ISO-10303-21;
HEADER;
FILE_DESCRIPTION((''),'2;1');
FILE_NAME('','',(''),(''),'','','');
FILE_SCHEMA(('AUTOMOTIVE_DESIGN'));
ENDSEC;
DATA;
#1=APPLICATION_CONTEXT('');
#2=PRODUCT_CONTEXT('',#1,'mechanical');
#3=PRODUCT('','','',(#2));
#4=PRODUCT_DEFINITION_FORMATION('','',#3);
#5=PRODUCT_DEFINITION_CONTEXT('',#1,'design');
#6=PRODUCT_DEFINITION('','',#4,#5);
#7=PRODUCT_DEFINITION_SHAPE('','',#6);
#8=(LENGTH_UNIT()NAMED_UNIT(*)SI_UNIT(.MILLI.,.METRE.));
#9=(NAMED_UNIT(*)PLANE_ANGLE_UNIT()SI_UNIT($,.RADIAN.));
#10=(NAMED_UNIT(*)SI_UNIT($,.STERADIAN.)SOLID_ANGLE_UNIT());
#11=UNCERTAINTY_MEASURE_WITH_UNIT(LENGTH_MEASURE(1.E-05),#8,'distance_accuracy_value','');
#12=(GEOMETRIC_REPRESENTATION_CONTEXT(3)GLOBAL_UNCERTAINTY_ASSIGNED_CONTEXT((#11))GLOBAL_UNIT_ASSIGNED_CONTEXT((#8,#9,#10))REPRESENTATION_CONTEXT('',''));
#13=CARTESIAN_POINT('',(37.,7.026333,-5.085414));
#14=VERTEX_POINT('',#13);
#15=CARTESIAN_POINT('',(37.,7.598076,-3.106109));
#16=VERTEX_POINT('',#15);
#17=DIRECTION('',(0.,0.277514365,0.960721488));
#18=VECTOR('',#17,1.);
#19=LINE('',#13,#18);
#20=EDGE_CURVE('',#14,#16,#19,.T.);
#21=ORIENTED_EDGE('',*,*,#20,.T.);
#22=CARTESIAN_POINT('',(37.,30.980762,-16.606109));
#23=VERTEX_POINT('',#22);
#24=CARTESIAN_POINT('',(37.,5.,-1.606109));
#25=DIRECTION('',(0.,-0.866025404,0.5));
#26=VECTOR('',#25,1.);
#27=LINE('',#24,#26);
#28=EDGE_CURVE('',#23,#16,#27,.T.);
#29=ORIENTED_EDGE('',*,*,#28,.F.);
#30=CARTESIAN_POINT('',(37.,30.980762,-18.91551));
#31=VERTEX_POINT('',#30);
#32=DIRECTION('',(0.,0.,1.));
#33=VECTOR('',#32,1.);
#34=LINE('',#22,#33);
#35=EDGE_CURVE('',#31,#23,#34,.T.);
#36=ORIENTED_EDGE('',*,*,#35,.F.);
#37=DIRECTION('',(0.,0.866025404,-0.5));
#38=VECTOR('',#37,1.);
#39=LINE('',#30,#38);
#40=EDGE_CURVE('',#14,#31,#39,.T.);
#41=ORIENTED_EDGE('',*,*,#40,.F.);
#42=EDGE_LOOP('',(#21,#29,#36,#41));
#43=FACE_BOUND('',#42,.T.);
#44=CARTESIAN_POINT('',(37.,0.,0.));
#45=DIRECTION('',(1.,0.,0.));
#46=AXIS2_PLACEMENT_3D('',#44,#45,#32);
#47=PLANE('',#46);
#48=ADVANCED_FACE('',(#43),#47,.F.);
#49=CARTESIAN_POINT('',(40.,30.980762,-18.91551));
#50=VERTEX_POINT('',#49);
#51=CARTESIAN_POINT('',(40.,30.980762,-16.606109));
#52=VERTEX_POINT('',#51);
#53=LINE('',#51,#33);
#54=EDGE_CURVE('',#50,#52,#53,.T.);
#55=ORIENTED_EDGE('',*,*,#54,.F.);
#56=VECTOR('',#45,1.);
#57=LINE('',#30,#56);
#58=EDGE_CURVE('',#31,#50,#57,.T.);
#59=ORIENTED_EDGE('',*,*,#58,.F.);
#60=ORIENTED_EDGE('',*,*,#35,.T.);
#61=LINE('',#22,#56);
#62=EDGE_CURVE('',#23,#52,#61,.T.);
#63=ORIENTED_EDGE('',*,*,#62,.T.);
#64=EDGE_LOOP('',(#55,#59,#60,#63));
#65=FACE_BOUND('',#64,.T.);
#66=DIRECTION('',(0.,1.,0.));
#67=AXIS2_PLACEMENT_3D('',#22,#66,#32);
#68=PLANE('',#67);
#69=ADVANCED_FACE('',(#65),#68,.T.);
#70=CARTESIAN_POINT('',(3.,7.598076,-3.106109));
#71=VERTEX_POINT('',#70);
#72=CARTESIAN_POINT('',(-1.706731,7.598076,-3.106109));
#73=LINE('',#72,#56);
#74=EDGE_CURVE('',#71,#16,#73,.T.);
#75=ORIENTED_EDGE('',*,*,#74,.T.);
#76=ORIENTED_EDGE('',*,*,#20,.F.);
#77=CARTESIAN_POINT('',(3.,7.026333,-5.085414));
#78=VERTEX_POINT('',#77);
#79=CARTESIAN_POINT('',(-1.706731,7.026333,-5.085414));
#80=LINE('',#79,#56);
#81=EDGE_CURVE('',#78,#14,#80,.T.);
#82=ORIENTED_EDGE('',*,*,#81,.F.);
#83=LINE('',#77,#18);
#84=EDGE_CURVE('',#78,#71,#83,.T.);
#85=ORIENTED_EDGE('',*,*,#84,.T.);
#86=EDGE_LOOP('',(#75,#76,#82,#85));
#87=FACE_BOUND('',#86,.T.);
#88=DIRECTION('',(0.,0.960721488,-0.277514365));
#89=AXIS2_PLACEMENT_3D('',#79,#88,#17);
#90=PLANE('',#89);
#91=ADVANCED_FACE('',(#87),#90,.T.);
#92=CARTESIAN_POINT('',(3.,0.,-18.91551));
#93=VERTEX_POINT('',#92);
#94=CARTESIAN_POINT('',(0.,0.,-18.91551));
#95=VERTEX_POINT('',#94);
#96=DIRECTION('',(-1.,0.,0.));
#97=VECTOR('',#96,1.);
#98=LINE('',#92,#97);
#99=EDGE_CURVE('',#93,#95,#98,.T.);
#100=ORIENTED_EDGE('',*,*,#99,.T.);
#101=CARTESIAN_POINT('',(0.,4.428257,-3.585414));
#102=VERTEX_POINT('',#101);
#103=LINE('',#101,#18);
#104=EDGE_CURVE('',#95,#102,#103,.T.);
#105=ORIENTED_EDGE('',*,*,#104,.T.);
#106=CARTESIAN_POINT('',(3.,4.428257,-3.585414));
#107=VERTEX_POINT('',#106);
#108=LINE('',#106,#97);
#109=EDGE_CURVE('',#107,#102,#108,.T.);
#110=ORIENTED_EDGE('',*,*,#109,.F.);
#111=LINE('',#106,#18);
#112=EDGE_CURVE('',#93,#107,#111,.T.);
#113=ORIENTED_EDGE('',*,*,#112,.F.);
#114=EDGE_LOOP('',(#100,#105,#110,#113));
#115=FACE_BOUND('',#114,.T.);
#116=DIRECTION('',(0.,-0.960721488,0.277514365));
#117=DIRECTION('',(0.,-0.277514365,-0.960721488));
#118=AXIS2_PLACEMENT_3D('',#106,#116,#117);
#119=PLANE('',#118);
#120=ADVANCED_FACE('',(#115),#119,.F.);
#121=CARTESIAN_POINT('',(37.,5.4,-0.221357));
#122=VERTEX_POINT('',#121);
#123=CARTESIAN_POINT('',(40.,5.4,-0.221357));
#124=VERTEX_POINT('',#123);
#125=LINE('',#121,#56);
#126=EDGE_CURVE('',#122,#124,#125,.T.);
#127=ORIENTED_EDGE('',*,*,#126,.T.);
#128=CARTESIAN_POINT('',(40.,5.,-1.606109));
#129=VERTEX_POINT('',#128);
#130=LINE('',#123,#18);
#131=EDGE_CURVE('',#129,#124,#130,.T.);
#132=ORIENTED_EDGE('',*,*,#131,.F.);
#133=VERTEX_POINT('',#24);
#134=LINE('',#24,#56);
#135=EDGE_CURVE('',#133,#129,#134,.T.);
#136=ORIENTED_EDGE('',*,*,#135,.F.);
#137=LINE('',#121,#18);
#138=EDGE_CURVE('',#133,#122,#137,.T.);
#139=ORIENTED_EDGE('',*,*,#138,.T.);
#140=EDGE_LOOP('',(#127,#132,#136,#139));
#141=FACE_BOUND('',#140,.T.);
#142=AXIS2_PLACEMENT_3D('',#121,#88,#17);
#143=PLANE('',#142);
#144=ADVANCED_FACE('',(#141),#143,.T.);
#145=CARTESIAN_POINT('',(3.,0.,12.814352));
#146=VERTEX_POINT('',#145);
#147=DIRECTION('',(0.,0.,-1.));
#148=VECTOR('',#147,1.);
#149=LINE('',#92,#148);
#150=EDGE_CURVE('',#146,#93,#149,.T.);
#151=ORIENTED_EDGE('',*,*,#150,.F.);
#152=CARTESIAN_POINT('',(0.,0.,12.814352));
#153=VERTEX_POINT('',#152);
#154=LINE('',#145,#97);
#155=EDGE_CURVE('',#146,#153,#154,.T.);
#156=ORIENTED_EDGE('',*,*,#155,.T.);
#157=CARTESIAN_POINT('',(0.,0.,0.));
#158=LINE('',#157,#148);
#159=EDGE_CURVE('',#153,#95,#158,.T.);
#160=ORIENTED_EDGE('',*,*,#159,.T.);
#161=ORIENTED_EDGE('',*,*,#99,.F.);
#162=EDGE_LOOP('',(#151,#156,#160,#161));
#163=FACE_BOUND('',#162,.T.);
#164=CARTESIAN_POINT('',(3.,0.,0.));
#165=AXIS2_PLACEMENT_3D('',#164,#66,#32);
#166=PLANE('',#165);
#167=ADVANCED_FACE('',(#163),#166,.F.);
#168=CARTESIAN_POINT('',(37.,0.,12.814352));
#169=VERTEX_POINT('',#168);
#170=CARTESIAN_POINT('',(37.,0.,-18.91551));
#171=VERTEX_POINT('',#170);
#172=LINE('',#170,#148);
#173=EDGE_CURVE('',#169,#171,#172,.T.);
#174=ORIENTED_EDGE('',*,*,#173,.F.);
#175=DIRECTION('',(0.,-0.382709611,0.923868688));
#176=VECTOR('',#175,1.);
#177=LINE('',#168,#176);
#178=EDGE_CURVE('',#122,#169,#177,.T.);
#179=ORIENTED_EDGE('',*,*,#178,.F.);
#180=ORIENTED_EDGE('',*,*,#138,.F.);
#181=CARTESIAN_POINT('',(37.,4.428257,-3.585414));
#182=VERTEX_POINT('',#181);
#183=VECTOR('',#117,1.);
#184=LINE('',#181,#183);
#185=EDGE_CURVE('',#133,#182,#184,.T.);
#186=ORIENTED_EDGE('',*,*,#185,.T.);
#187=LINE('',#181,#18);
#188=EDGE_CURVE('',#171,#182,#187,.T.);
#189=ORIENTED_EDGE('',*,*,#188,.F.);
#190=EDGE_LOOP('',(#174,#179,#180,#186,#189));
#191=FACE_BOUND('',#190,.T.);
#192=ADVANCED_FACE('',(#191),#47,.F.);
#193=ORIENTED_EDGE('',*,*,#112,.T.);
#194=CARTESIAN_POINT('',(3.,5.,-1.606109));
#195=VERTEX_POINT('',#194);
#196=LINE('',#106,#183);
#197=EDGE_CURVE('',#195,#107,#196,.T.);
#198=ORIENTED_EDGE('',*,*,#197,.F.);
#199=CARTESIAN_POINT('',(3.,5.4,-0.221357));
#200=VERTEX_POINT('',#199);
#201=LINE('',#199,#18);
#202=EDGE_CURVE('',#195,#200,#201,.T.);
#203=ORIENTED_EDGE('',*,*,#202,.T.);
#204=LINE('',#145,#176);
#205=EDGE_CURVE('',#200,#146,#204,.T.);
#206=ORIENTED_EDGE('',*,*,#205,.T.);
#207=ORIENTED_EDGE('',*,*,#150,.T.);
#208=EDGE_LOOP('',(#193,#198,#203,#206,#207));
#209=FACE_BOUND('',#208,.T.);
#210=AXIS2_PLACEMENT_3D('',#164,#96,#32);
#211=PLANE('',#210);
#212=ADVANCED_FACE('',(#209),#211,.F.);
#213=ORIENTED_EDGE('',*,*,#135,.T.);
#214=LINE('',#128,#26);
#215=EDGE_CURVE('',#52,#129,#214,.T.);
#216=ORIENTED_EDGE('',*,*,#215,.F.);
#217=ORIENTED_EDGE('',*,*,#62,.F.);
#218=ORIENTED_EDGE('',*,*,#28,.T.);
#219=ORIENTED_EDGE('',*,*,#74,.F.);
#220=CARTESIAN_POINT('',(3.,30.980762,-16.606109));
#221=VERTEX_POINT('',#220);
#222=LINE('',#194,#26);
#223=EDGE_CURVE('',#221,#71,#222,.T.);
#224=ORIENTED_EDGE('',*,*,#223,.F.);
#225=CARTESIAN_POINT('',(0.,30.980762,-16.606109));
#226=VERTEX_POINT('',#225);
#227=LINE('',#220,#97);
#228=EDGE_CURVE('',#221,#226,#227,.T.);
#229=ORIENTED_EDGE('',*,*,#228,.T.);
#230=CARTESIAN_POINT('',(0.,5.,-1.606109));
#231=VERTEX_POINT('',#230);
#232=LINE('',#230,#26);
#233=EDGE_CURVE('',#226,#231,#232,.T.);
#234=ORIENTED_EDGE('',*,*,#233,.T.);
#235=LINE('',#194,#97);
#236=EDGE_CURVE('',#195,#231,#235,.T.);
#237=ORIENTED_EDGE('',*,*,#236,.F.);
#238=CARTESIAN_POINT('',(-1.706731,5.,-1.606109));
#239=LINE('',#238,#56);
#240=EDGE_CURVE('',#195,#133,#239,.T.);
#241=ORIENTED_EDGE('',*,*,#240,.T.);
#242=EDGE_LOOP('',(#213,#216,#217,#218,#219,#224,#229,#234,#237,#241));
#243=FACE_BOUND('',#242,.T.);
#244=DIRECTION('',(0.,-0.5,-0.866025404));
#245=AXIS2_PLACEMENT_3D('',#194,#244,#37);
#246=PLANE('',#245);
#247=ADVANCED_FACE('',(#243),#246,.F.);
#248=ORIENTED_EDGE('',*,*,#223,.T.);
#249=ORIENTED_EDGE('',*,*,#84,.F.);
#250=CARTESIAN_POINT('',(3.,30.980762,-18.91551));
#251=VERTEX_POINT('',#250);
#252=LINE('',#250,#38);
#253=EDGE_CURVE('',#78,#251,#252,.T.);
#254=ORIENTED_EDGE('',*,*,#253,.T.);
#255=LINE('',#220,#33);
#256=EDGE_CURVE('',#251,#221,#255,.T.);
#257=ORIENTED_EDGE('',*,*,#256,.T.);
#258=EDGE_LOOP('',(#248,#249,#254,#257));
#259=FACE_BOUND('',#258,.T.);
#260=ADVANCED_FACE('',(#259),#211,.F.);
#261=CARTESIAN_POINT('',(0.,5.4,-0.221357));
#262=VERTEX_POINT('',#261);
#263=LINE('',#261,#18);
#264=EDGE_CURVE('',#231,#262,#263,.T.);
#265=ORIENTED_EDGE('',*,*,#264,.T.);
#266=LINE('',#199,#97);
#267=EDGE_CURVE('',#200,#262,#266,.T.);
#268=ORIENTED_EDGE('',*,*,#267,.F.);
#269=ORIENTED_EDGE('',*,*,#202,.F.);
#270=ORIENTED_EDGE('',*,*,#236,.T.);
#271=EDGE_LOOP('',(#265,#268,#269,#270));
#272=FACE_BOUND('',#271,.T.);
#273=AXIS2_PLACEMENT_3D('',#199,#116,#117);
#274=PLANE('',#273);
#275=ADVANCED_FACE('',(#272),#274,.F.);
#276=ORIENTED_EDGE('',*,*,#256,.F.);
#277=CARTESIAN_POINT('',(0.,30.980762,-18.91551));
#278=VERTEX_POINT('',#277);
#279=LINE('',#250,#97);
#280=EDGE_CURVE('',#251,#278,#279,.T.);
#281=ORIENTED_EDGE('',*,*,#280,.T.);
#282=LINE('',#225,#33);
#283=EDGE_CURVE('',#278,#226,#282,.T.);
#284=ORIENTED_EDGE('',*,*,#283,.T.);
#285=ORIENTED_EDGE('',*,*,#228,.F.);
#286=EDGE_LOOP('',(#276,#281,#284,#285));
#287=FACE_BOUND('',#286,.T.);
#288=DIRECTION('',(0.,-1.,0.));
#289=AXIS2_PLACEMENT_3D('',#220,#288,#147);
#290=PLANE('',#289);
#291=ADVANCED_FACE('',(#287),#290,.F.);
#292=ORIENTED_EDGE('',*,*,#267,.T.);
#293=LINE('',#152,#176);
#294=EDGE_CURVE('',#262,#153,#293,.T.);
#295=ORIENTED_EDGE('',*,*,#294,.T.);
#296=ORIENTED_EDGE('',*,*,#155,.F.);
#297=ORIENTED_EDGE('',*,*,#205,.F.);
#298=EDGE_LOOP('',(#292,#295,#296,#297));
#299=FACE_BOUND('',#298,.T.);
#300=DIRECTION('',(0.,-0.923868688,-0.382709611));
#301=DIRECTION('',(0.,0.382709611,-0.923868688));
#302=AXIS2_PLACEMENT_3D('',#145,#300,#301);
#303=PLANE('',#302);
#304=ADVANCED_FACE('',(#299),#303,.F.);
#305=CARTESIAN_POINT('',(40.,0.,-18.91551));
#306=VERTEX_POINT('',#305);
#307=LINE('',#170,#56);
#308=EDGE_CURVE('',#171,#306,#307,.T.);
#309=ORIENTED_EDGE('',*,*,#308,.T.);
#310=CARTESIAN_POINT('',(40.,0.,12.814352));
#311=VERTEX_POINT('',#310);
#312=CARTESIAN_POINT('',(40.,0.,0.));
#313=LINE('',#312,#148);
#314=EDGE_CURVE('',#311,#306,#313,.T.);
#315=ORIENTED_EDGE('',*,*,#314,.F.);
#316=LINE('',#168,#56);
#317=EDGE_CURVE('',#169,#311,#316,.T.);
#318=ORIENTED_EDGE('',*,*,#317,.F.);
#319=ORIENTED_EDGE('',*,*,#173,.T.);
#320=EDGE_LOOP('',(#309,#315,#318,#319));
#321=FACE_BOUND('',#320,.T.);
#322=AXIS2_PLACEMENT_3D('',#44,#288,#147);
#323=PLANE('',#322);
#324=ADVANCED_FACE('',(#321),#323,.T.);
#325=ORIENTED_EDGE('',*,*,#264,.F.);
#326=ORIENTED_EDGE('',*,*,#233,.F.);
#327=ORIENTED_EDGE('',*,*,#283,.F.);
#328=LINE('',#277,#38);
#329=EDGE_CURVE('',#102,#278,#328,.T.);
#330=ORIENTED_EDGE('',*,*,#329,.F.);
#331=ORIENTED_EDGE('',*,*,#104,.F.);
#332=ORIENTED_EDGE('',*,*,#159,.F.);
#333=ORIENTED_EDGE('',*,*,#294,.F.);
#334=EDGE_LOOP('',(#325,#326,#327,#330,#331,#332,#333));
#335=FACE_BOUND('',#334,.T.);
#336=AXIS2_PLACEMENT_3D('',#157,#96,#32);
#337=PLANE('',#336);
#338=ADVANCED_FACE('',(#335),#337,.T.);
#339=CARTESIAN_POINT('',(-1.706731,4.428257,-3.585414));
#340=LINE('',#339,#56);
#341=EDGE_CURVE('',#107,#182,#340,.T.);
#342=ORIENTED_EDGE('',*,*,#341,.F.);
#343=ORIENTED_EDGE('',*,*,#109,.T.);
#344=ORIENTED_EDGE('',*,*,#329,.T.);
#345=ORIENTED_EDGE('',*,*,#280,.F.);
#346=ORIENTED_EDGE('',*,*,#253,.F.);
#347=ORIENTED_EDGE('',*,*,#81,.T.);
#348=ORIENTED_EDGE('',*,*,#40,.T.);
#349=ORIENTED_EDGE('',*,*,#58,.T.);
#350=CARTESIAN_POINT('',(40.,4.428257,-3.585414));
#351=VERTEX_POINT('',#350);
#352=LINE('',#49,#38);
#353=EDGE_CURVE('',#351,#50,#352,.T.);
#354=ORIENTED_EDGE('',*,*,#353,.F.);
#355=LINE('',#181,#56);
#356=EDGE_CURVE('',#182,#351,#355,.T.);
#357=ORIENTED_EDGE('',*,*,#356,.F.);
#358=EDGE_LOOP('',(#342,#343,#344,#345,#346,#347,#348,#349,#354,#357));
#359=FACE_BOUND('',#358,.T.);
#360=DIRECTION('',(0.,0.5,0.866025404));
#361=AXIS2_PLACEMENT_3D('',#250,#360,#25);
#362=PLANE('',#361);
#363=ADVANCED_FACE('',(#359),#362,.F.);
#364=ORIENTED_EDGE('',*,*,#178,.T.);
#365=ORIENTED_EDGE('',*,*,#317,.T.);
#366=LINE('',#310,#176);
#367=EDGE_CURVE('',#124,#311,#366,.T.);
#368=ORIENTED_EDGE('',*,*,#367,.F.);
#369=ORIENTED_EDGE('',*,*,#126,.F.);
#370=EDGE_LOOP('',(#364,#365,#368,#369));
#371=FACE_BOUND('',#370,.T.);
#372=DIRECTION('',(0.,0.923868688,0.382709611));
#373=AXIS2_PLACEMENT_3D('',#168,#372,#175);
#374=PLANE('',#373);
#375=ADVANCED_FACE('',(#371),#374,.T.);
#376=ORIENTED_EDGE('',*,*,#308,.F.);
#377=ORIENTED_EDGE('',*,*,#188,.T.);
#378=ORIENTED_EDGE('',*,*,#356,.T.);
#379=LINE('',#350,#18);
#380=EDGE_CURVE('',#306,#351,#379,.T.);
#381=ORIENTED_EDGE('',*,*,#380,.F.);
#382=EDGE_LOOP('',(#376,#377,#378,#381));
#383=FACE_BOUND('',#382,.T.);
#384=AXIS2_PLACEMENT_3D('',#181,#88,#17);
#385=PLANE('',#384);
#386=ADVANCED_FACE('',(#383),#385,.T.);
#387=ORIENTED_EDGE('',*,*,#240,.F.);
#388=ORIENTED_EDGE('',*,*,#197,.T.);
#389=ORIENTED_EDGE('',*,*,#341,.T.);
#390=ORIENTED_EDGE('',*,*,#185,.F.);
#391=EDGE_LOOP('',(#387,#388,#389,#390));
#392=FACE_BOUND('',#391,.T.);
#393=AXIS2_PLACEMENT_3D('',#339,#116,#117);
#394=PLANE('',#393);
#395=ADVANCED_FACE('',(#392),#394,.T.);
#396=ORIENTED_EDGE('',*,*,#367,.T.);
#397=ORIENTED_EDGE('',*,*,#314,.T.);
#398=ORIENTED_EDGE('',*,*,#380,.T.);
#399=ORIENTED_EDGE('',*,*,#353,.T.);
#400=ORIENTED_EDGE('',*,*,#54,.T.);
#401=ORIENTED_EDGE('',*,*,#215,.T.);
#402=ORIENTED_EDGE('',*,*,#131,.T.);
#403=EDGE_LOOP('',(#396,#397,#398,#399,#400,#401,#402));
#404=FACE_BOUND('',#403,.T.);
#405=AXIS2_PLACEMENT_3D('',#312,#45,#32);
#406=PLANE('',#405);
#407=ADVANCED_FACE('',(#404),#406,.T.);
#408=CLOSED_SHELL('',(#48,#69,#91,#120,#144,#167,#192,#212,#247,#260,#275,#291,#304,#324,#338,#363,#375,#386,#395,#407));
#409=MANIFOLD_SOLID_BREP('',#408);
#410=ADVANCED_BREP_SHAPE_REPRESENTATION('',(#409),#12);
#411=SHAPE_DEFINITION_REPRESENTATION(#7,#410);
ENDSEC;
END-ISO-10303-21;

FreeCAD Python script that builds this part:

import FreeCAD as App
import Part
import Sketcher
Q = App.Units.Quantity


def add_polygon(sketch, points):
    """Adds a closed chain of lines whose ends are joined by coincident constraints."""
    first, n = sketch.GeometryCount, len(points)
    for a, b in zip(points, points[1:] + points[:1]):
        sketch.addGeometry(Part.LineSegment(App.Vector(*a, 0), App.Vector(*b, 0)), False)
    for i in range(n):
        sketch.addConstraint(Sketcher.Constraint("Coincident", first + i, 2, first + (i + 1) % n, 1))

doc = App.newDocument("Part")
body = doc.addObject("PartDesign::Body", "Body")

# Sketch on YZ plane
sketch1 = doc.addObject("Sketcher::SketchObject", "Sketch")
body.addObject(sketch1)
sketch1.AttachmentSupport = (doc.YZ_Plane, [""])
sketch1.MapMode = "FlatFace"
add_polygon(sketch1, [(0, 12.8), (0, -18.9), (4.4, -3.6), (31, -18.9), (31, -16.6), (5, -1.6), (5.4, -0.2)])  # lines 0-6
sketch1.addConstraint([
    Sketcher.Constraint("Vertical", 0),
    Sketcher.Constraint("Vertical", 3),
    Sketcher.Constraint("PointOnObject", 0, 2, -2),
    Sketcher.Constraint("Parallel", 2, 4),
    Sketcher.Constraint("Parallel", 1, 5),
    Sketcher.Constraint("Horizontal", 0, 2, 2, 2),
    Sketcher.Constraint("Angle", 2, Q("-30 deg")),
    Sketcher.Constraint("Distance", 4, Q("30 mm")),
    Sketcher.Constraint("DistanceX", -1, 1, 4, 2, Q("5 mm")),
    Sketcher.Constraint("DistanceX", -1, 1, 5, 2, Q("5.4 mm")),
    Sketcher.Constraint("DistanceY", 3, 1, 3, 2, Q("2.309401 mm")),
    Sketcher.Constraint("DistanceY", 0, 2, 0, 1, Q("31.729862 mm")),
    Sketcher.Constraint("Distance", 2, Q("30.660192 mm")),
    Sketcher.Constraint("DistanceY", 0, 2, -1, 1, Q("18.91551 mm")),
])
pad1 = doc.addObject("PartDesign::Pad", "Pad")
body.addObject(pad1)
pad1.Profile = sketch1
pad1.Length = 3

# Sketch on YZ plane
sketch2 = doc.addObject("Sketcher::SketchObject", "Sketch001")
body.addObject(sketch2)
sketch2.AttachmentSupport = (doc.YZ_Plane, [""])
sketch2.MapMode = "FlatFace"
sketch2.AttachmentOffset = App.Placement(App.Vector(0, 0, 20), App.Rotation())
add_polygon(sketch2, [(5, -1.6), (4.4, -3.6), (7, -5.1), (7.6, -3.1)])  # lines 0-3
sketch2.addConstraint([
    Sketcher.Constraint("Parallel", 0, 2),
    Sketcher.Constraint("Parallel", 1, 3),
    Sketcher.Constraint("Angle", 1, Q("-30 deg")),
    Sketcher.Constraint("Distance", 1, Q("3 mm")),
    Sketcher.Constraint("DistanceX", -1, 1, 3, 2, Q("5 mm")),
    Sketcher.Constraint("DistanceY", 2, 2, -1, 1, Q("3.106109 mm")),
    Sketcher.Constraint("DistanceX", 0, 2, 2, 2, Q("3.169819 mm")),
    Sketcher.Constraint("Distance", 0, Q("2.060228 mm")),
])
pad2 = doc.addObject("PartDesign::Pad", "Pad001")
body.addObject(pad2)
pad2.Profile = sketch2
pad2.Length = 17
pad2.Reversed = True
doc.recompute()

datumplane = doc.addObject("PartDesign::Plane", "DatumPlane")
body.addObject(datumplane)
datumplane.AttachmentSupport = (doc.YZ_Plane, [""])
datumplane.MapMode = "FlatFace"
datumplane.AttachmentOffset = App.Placement(App.Vector(0, 0, 20), App.Rotation())
mirrored = doc.addObject("PartDesign::Mirrored", "Mirrored")
body.addObject(mirrored)
mirrored.Originals = [pad2]
mirrored.MirrorPlane = (datumplane, [""])
body.Tip = mirrored
doc.recompute()

datumplane2 = doc.addObject("PartDesign::Plane", "DatumPlane001")
body.addObject(datumplane2)
datumplane2.AttachmentSupport = (doc.YZ_Plane, [""])
datumplane2.MapMode = "FlatFace"
datumplane2.AttachmentOffset = App.Placement(App.Vector(0, 0, 20), App.Rotation())
mirrored2 = doc.addObject("PartDesign::Mirrored", "Mirrored001")
body.addObject(mirrored2)
mirrored2.Originals = [pad1]
mirrored2.MirrorPlane = (datumplane2, [""])
body.Tip = mirrored2

doc.recompute()
